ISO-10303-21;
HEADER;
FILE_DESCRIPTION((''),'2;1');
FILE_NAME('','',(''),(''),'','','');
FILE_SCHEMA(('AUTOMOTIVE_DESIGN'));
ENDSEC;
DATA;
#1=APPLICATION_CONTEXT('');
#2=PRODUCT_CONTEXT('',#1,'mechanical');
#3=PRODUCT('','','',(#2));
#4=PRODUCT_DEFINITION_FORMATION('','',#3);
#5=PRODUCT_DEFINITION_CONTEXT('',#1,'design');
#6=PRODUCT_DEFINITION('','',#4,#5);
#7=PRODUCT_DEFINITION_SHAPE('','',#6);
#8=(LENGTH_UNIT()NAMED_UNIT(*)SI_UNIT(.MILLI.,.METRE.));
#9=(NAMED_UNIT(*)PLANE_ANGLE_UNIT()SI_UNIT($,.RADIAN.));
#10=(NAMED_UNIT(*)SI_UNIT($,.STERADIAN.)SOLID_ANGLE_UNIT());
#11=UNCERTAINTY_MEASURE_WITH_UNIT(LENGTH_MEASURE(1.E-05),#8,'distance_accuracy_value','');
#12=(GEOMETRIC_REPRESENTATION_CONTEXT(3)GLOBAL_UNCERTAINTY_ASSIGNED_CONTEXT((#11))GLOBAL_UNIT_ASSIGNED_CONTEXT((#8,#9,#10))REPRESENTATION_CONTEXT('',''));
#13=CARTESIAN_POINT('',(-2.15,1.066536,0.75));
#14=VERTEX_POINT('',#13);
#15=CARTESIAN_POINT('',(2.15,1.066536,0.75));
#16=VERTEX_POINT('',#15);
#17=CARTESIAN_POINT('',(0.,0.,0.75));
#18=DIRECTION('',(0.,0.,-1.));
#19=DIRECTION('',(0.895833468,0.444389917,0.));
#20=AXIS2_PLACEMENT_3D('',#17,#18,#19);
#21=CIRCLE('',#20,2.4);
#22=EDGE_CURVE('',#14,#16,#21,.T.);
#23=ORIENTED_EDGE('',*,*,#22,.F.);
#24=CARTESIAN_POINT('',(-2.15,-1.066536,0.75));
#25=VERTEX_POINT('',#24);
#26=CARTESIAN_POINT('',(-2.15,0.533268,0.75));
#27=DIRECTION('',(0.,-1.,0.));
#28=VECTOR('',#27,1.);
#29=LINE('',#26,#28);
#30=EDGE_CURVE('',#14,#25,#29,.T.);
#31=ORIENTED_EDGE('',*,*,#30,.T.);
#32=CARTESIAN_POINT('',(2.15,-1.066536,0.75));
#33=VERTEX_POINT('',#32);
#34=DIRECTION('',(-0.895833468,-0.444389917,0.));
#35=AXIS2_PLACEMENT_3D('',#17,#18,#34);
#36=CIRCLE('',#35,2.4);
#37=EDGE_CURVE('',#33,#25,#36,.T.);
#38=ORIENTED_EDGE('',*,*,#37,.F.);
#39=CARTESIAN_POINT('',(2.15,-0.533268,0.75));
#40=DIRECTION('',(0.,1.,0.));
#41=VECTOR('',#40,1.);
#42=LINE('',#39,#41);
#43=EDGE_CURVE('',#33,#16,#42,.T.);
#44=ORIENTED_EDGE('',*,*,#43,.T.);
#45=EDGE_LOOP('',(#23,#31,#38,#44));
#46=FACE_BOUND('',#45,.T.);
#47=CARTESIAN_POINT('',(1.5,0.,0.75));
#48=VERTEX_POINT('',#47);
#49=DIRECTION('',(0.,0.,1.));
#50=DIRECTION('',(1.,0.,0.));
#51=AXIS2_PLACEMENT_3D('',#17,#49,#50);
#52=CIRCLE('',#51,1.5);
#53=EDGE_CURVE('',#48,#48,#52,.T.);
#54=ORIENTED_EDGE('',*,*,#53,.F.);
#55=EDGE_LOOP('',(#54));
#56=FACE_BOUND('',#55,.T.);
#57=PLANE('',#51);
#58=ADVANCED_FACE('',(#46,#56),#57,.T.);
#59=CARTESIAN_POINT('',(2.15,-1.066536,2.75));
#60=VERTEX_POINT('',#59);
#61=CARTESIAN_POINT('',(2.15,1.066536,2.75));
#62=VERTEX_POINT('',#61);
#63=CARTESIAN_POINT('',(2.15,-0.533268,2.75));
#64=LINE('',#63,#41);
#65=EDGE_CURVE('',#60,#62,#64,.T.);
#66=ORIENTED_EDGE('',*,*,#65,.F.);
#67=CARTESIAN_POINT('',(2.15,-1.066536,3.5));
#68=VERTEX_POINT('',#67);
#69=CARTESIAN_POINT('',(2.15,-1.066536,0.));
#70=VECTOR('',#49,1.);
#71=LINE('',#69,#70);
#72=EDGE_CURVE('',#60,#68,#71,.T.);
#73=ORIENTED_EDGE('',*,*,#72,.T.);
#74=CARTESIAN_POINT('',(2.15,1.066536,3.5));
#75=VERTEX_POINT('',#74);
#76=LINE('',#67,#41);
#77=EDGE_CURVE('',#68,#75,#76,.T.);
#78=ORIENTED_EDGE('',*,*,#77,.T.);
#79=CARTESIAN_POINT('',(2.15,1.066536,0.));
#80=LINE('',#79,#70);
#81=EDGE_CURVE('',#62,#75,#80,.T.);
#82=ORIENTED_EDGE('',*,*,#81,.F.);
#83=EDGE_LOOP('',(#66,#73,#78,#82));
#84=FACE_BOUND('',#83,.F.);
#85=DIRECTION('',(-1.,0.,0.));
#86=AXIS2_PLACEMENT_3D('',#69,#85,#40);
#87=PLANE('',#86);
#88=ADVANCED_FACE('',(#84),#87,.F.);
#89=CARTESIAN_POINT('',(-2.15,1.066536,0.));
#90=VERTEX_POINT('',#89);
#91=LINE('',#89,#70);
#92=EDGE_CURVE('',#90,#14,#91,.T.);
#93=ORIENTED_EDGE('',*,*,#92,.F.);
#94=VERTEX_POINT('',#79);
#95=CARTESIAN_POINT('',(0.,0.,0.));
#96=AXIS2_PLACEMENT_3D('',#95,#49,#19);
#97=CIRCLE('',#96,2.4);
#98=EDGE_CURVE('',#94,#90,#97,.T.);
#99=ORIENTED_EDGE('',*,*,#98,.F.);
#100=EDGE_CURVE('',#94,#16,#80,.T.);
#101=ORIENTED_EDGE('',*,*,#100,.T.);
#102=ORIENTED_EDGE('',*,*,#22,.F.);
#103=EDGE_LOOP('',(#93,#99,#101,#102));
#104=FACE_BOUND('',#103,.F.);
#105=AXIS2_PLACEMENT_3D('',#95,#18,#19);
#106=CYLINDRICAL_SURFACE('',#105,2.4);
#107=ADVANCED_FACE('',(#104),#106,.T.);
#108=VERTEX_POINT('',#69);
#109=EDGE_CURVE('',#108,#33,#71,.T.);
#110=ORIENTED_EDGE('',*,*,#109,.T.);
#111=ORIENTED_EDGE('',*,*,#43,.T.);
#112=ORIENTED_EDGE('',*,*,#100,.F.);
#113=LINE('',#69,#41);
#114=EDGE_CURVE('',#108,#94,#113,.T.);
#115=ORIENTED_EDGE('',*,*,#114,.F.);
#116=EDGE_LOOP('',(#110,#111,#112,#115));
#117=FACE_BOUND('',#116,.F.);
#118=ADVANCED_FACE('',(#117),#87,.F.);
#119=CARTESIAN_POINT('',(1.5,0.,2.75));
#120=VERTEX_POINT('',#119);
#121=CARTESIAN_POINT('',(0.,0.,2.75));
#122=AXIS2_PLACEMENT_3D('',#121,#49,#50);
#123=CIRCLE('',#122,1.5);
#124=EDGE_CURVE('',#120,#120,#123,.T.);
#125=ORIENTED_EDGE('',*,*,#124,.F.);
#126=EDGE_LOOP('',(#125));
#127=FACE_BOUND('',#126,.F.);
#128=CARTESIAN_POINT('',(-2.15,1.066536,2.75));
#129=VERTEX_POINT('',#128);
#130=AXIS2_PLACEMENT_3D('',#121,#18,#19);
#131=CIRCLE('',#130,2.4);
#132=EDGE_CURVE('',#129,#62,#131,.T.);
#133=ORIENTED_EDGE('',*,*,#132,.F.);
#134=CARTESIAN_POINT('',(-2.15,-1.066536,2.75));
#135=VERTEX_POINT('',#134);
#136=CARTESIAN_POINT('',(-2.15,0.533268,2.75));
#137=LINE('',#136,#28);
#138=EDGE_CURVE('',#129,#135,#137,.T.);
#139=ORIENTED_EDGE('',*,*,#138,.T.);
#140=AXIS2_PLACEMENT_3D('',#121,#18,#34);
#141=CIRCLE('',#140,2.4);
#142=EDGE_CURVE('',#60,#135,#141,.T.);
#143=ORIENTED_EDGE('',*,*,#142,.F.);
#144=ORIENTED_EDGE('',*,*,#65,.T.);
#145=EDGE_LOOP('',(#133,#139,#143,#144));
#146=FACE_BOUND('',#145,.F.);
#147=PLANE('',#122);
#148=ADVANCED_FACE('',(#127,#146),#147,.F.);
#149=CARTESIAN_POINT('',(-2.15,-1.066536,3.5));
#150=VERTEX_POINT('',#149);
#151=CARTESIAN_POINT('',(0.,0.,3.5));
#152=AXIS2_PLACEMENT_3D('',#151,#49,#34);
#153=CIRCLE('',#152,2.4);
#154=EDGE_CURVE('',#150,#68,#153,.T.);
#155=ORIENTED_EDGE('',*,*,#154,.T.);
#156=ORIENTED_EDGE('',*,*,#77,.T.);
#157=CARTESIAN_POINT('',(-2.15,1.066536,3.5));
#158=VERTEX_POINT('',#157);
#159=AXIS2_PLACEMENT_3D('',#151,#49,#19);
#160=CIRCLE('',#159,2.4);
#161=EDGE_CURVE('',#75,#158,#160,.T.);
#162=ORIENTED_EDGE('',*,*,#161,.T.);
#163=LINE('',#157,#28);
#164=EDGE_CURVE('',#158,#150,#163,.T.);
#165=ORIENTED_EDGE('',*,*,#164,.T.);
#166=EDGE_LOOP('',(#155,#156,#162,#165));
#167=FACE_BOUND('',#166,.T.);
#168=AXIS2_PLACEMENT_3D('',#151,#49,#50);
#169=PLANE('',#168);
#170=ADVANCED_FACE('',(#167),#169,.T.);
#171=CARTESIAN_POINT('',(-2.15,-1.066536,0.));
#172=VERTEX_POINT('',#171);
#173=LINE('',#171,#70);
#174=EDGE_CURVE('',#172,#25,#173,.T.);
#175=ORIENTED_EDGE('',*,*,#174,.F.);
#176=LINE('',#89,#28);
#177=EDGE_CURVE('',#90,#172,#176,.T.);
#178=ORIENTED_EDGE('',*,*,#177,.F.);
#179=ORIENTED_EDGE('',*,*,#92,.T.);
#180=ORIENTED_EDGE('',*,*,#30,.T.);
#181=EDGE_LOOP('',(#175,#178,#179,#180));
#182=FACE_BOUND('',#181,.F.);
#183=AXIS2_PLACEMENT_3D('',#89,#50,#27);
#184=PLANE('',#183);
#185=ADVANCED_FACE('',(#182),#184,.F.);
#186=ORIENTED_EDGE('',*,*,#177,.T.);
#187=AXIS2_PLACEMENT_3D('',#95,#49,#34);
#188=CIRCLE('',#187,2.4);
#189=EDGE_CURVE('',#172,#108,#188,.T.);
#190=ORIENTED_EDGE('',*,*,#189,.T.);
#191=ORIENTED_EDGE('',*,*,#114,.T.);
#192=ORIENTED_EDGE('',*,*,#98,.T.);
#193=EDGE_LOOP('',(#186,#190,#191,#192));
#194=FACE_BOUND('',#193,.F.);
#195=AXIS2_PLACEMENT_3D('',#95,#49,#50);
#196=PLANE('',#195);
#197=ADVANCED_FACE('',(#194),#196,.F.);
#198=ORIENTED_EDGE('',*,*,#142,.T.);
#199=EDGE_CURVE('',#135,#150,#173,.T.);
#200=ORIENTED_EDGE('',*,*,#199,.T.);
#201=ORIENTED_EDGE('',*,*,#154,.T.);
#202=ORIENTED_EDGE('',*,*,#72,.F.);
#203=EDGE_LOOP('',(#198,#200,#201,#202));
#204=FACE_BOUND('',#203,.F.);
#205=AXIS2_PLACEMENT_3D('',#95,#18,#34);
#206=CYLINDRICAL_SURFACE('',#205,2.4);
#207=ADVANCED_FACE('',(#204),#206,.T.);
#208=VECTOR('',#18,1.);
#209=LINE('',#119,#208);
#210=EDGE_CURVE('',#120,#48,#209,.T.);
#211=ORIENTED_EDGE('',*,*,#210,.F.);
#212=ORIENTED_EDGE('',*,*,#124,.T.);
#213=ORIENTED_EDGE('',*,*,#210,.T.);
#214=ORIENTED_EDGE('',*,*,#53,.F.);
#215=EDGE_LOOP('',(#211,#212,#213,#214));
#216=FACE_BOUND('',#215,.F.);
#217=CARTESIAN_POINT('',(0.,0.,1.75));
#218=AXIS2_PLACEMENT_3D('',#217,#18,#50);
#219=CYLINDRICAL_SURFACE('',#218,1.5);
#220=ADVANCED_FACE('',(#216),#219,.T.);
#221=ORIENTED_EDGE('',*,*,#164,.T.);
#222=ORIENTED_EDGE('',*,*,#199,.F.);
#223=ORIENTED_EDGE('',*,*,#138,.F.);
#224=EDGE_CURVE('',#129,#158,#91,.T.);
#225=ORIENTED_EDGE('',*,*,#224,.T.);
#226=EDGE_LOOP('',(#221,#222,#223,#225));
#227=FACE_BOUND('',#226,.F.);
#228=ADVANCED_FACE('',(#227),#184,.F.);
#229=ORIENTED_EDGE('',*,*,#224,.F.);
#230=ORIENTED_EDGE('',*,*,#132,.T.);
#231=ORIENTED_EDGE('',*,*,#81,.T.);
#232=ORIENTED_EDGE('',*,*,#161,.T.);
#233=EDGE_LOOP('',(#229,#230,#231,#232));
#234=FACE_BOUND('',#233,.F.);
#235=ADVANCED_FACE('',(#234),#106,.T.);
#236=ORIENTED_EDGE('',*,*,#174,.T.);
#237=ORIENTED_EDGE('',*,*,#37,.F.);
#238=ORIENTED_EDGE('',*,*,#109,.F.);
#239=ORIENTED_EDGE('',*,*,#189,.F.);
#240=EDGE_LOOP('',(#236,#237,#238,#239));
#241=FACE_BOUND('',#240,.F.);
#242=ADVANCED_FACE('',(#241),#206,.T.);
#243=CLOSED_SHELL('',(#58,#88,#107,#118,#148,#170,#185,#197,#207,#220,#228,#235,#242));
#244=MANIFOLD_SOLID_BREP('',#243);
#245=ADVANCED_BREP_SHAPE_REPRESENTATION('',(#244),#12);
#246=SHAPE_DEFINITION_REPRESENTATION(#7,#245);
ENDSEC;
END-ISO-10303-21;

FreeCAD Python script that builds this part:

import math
import FreeCAD as App
import Part
import Sketcher

V = App.Vector
Q = App.Units.Quantity

doc = App.newDocument("Part")
params = doc.addObject("Spreadsheet::Sheet", "Params")
for row, (alias, value) in enumerate([
    ("sketch1_radius", "2.4 mm"),
    ("pad1_length", "3.5 mm"),
    ("sketch2_diameter", "3 mm"),
    ("sketch2_diameter2", "5.5 mm"),
    ("pocket1_length", "2 mm"),
], start=1):
    params.set(f"A{row}", alias)
    params.set(f"B{row}", "=" + value)
    params.setAlias(f"B{row}", alias)

body = doc.addObject("PartDesign::Body", "Body")

# Sketch on XY plane
sketch1 = body.newObject("Sketcher::SketchObject", "Sketch")
sketch1.AttachmentSupport = (doc.getObject("XY_Plane"), [""])
sketch1.MapMode = "FlatFace"
sketch1.addGeometry([
    Part.ArcOfCircle(Part.Circle(V(0, 0, 0), V(0, 0, 1), 2.4), math.radians(26), math.radians(154)),
    Part.LineSegment(V(-2.1, 1.1, 0), V(-2.1, -1.1, 0)),
    Part.ArcOfCircle(Part.Circle(V(0, 0, 0), V(0, 0, 1), 2.4), math.radians(-154), math.radians(-26)),
    Part.LineSegment(V(2.1, -1.1, 0), V(2.1, 1.1, 0)),
], False)
sketch1.addConstraint([
    Sketcher.Constraint("Coincident", 0, 2, 1, 1),
    Sketcher.Constraint("Coincident", 1, 2, 2, 1),
    Sketcher.Constraint("Coincident", 2, 2, 3, 1),
    Sketcher.Constraint("Coincident", 3, 2, 0, 1),
    Sketcher.Constraint("Vertical", 1),
    Sketcher.Constraint("Vertical", 3),
    Sketcher.Constraint("Coincident", 0, 3, -1, 1),
    Sketcher.Constraint("Coincident", 2, 3, -1, 1),
    Sketcher.Constraint("Equal", 0, 2),
    Sketcher.Constraint("Horizontal", 1, 2, 2, 2),
    Sketcher.Constraint("Radius", 0, Q("2.4 mm")),
    Sketcher.Constraint("DistanceX", 1, 2, 2, 2, Q("4.3 mm")),
])
sketch1.setExpression("Constraints[10]", "Params.sketch1_radius")
pad1 = body.newObject("PartDesign::Pad", "Pad")
pad1.Profile = sketch1
pad1.setExpression("Length", "Params.pad1_length")

# Sketch on XY plane
sketch2 = body.newObject("Sketcher::SketchObject", "Sketch001")
sketch2.AttachmentSupport = (doc.getObject("XY_Plane"), [""])
sketch2.MapMode = "FlatFace"
sketch2.AttachmentOffset = App.Placement(V(0, 0, 1.75), App.Rotation())
sketch2.addGeometry([
    Part.Circle(V(0, 0, 0), V(0, 0, 1), 2.8),
    Part.Circle(V(0, 0, 0), V(0, 0, 1), 1.5),
], False)
sketch2.addConstraint([
    Sketcher.Constraint("Coincident", 0, 3, -1, 1),
    Sketcher.Constraint("Coincident", 1, 3, -1, 1),
    Sketcher.Constraint("Diameter", 1, Q("3 mm")),
    Sketcher.Constraint("Diameter", 0, Q("5.5 mm")),
])
sketch2.setExpression("Constraints[2]", "Params.sketch2_diameter")
sketch2.setExpression("Constraints[3]", "Params.sketch2_diameter2")
pocket1 = body.newObject("PartDesign::Pocket", "Pocket")
pocket1.Profile = sketch2
pocket1.setExpression("Length", "Params.pocket1_length")
pocket1.Midplane = True

doc.recompute()
